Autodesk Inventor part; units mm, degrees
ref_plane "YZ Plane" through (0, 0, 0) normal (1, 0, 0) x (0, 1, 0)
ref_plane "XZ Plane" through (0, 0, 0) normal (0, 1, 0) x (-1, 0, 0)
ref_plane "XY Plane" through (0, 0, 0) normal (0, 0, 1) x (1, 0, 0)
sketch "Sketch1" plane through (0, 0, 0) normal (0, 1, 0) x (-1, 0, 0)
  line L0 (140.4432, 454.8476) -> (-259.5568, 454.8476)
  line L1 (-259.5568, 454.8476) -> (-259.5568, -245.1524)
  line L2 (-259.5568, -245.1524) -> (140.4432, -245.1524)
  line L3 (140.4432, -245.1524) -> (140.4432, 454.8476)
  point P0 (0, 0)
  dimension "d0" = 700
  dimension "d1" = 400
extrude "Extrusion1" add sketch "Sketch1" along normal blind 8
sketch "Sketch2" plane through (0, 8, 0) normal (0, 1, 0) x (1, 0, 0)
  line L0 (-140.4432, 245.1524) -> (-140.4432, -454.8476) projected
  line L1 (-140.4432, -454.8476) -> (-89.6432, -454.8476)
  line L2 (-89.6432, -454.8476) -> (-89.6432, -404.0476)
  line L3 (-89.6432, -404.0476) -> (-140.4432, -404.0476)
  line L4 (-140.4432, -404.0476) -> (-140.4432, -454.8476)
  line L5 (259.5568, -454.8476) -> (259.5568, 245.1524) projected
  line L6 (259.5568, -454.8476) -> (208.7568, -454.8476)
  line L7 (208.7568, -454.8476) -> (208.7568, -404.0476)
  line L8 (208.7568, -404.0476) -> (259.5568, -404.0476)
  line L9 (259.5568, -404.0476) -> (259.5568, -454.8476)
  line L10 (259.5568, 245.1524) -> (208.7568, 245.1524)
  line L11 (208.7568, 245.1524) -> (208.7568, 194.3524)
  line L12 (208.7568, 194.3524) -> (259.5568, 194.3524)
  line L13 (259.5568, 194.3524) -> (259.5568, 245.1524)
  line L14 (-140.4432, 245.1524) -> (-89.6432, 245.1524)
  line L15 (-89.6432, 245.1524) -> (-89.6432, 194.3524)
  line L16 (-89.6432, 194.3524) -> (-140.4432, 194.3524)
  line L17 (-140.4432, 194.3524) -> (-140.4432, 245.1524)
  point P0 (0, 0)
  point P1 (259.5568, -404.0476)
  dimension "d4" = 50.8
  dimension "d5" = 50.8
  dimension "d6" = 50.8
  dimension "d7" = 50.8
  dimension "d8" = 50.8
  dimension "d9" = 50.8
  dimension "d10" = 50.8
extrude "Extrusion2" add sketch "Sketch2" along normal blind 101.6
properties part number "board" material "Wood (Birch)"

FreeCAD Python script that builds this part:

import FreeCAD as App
import Part
import Sketcher
from FreeCAD import Vector
Q = App.Units.Quantity

doc = App.newDocument("Part")
params = doc.addObject("Spreadsheet::Sheet", "Params")
for row, (alias, value) in enumerate([
    ("sketch1_width", "400 mm"),
    ("sketch1_height", "700 mm"),
    ("pad1_length", "8 mm"),
    ("sketch2_width", "50.8 mm"),
    ("pad2_length", "101.6 mm"),
], start=1):
    params.set(f"A{row}", alias)
    params.set(f"B{row}", "=" + value)
    params.setAlias(f"B{row}", alias)

body = doc.addObject("PartDesign::Body", "Body")

# Sketch on XZ plane
sketch1 = doc.addObject("Sketcher::SketchObject", "Sketch")
body.addObject(sketch1)
sketch1.AttachmentSupport = (doc.XZ_Plane, [""])
sketch1.MapMode = "FlatFace"
sketch1.addGeometry([
    Part.LineSegment(Vector(-140.4432, -245.1524, 0), Vector(-140.4432, 454.8476, 0)),
    Part.LineSegment(Vector(-140.4432, 454.8476, 0), Vector(259.5568, 454.8476, 0)),
    Part.LineSegment(Vector(259.5568, 454.8476, 0), Vector(259.5568, -245.1524, 0)),
    Part.LineSegment(Vector(259.5568, -245.1524, 0), Vector(-140.4432, -245.1524, 0)),
], False)
sketch1.addConstraint([
    Sketcher.Constraint("Coincident", 0, 2, 1, 1),
    Sketcher.Constraint("Coincident", 1, 2, 2, 1),
    Sketcher.Constraint("Coincident", 2, 2, 3, 1),
    Sketcher.Constraint("Coincident", 3, 2, 0, 1),
    Sketcher.Constraint("Vertical", 0),
    Sketcher.Constraint("Horizontal", 1),
    Sketcher.Constraint("Vertical", 2),
    Sketcher.Constraint("Horizontal", 3),
    Sketcher.Constraint("DistanceX", 1, 1, 1, 2, Q("400 mm")),
    Sketcher.Constraint("DistanceY", 0, 1, 0, 2, Q("700 mm")),
    Sketcher.Constraint("DistanceX", 0, 2, -1, 1, Q("140.4432 mm")),
    Sketcher.Constraint("DistanceY", -1, 1, 0, 2, Q("454.8476 mm")),
])
sketch1.setExpression("Constraints[8]", "Params.sketch1_width")
sketch1.setExpression("Constraints[9]", "Params.sketch1_height")
pad1 = doc.addObject("PartDesign::Pad", "Pad")
body.addObject(pad1)
pad1.Profile = sketch1
pad1.setExpression("Length", "Params.pad1_length")
pad1.Reversed = True

# Sketch on XZ plane
sketch2 = doc.addObject("Sketcher::SketchObject", "Sketch001")
body.addObject(sketch2)
sketch2.AttachmentSupport = (doc.XZ_Plane, [""])
sketch2.MapMode = "FlatFace"
sketch2.AttachmentOffset = App.Placement(Vector(0, 0, -8), App.Rotation())
sketch2.addGeometry([
    Part.LineSegment(Vector(-89.6432, -245.1524, 0), Vector(-140.4432, -245.1524, 0)),  # 0
    Part.LineSegment(Vector(-140.4432, -245.1524, 0), Vector(-140.4432, -194.3524, 0)),  # 1
    Part.LineSegment(Vector(-140.4432, -194.3524, 0), Vector(-89.6432, -194.3524, 0)),  # 2
    Part.LineSegment(Vector(-89.6432, -194.3524, 0), Vector(-89.6432, -245.1524, 0)),  # 3
    Part.LineSegment(Vector(-89.6432, 404.0476, 0), Vector(-140.4432, 404.0476, 0)),  # 4
    Part.LineSegment(Vector(-140.4432, 404.0476, 0), Vector(-140.4432, 454.8476, 0)),  # 5
    Part.LineSegment(Vector(-140.4432, 454.8476, 0), Vector(-89.6432, 454.8476, 0)),  # 6
    Part.LineSegment(Vector(-89.6432, 454.8476, 0), Vector(-89.6432, 404.0476, 0)),  # 7
    Part.LineSegment(Vector(208.7568, 454.8476, 0), Vector(259.5568, 454.8476, 0)),  # 8
    Part.LineSegment(Vector(259.5568, 454.8476, 0), Vector(259.5568, 404.0476, 0)),  # 9
    Part.LineSegment(Vector(259.5568, 404.0476, 0), Vector(208.7568, 404.0476, 0)),  # 10
    Part.LineSegment(Vector(208.7568, 404.0476, 0), Vector(208.7568, 454.8476, 0)),  # 11
    Part.LineSegment(Vector(208.7568, -194.3524, 0), Vector(259.5568, -194.3524, 0)),  # 12
    Part.LineSegment(Vector(259.5568, -194.3524, 0), Vector(259.5568, -245.1524, 0)),  # 13
    Part.LineSegment(Vector(259.5568, -245.1524, 0), Vector(208.7568, -245.1524, 0)),  # 14
    Part.LineSegment(Vector(208.7568, -245.1524, 0), Vector(208.7568, -194.3524, 0)),  # 15
], False)
sketch2.addConstraint([
    Sketcher.Constraint("Coincident", 0, 2, 1, 1),
    Sketcher.Constraint("Coincident", 1, 2, 2, 1),
    Sketcher.Constraint("Coincident", 2, 2, 3, 1),
    Sketcher.Constraint("Coincident", 3, 2, 0, 1),
    Sketcher.Constraint("Coincident", 4, 2, 5, 1),
    Sketcher.Constraint("Coincident", 5, 2, 6, 1),
    Sketcher.Constraint("Coincident", 6, 2, 7, 1),
    Sketcher.Constraint("Coincident", 7, 2, 4, 1),
    Sketcher.Constraint("Coincident", 8, 2, 9, 1),
    Sketcher.Constraint("Coincident", 9, 2, 10, 1),
    Sketcher.Constraint("Coincident", 10, 2, 11, 1),
    Sketcher.Constraint("Coincident", 11, 2, 8, 1),
    Sketcher.Constraint("Coincident", 12, 2, 13, 1),
    Sketcher.Constraint("Coincident", 13, 2, 14, 1),
    Sketcher.Constraint("Coincident", 14, 2, 15, 1),
    Sketcher.Constraint("Coincident", 15, 2, 12, 1),
    Sketcher.Constraint("Horizontal", 0),
    Sketcher.Constraint("Vertical", 1),
    Sketcher.Constraint("Horizontal", 2),
    Sketcher.Constraint("Vertical", 3),
    Sketcher.Constraint("Horizontal", 4),
    Sketcher.Constraint("Vertical", 5),
    Sketcher.Constraint("Horizontal", 6),
    Sketcher.Constraint("Vertical", 7),
    Sketcher.Constraint("Horizontal", 8),
    Sketcher.Constraint("Vertical", 9),
    Sketcher.Constraint("Horizontal", 10),
    Sketcher.Constraint("Vertical", 11),
    Sketcher.Constraint("Horizontal", 12),
    Sketcher.Constraint("Vertical", 13),
    Sketcher.Constraint("Horizontal", 14),
    Sketcher.Constraint("Vertical", 15),
    Sketcher.Constraint("Horizontal", 6, 2, 8, 2),
    Sketcher.Constraint("Horizontal", 7, 2, 9, 2),
    Sketcher.Constraint("Horizontal", 2, 2, 12, 2),
    Sketcher.Constraint("Horizontal", 3, 2, 13, 2),
    Sketcher.Constraint("Vertical", 1, 2, 4, 2),
    Sketcher.Constraint("Vertical", 3, 2, 6, 2),
    Sketcher.Constraint("Vertical", 9, 2, 12, 2),
    Sketcher.Constraint("Vertical", 11, 2, 14, 2),
    Sketcher.Constraint("Equal", 6, 8),
    Sketcher.Constraint("Equal", 14, 1),
    Sketcher.Constraint("Equal", 3, 5),
    Sketcher.Constraint("DistanceX", 0, 2, 0, 1, Q("50.8 mm")),
    Sketcher.Constraint("DistanceY", 0, 2, 5, 2, Q("700 mm")),
    Sketcher.Constraint("DistanceX", 5, 2, 8, 2, Q("400 mm")),
    Sketcher.Constraint("DistanceX", 0, 2, -1, 1, Q("140.4432 mm")),
    Sketcher.Constraint("DistanceY", 0, 2, -1, 1, Q("245.1524 mm")),
])
sketch2.setExpression("Constraints[43]", "Params.sketch2_width")
pad2 = doc.addObject("PartDesign::Pad", "Pad001")
body.addObject(pad2)
pad2.Profile = sketch2
pad2.setExpression("Length", "Params.pad2_length")
pad2.Reversed = True

doc.recompute()
